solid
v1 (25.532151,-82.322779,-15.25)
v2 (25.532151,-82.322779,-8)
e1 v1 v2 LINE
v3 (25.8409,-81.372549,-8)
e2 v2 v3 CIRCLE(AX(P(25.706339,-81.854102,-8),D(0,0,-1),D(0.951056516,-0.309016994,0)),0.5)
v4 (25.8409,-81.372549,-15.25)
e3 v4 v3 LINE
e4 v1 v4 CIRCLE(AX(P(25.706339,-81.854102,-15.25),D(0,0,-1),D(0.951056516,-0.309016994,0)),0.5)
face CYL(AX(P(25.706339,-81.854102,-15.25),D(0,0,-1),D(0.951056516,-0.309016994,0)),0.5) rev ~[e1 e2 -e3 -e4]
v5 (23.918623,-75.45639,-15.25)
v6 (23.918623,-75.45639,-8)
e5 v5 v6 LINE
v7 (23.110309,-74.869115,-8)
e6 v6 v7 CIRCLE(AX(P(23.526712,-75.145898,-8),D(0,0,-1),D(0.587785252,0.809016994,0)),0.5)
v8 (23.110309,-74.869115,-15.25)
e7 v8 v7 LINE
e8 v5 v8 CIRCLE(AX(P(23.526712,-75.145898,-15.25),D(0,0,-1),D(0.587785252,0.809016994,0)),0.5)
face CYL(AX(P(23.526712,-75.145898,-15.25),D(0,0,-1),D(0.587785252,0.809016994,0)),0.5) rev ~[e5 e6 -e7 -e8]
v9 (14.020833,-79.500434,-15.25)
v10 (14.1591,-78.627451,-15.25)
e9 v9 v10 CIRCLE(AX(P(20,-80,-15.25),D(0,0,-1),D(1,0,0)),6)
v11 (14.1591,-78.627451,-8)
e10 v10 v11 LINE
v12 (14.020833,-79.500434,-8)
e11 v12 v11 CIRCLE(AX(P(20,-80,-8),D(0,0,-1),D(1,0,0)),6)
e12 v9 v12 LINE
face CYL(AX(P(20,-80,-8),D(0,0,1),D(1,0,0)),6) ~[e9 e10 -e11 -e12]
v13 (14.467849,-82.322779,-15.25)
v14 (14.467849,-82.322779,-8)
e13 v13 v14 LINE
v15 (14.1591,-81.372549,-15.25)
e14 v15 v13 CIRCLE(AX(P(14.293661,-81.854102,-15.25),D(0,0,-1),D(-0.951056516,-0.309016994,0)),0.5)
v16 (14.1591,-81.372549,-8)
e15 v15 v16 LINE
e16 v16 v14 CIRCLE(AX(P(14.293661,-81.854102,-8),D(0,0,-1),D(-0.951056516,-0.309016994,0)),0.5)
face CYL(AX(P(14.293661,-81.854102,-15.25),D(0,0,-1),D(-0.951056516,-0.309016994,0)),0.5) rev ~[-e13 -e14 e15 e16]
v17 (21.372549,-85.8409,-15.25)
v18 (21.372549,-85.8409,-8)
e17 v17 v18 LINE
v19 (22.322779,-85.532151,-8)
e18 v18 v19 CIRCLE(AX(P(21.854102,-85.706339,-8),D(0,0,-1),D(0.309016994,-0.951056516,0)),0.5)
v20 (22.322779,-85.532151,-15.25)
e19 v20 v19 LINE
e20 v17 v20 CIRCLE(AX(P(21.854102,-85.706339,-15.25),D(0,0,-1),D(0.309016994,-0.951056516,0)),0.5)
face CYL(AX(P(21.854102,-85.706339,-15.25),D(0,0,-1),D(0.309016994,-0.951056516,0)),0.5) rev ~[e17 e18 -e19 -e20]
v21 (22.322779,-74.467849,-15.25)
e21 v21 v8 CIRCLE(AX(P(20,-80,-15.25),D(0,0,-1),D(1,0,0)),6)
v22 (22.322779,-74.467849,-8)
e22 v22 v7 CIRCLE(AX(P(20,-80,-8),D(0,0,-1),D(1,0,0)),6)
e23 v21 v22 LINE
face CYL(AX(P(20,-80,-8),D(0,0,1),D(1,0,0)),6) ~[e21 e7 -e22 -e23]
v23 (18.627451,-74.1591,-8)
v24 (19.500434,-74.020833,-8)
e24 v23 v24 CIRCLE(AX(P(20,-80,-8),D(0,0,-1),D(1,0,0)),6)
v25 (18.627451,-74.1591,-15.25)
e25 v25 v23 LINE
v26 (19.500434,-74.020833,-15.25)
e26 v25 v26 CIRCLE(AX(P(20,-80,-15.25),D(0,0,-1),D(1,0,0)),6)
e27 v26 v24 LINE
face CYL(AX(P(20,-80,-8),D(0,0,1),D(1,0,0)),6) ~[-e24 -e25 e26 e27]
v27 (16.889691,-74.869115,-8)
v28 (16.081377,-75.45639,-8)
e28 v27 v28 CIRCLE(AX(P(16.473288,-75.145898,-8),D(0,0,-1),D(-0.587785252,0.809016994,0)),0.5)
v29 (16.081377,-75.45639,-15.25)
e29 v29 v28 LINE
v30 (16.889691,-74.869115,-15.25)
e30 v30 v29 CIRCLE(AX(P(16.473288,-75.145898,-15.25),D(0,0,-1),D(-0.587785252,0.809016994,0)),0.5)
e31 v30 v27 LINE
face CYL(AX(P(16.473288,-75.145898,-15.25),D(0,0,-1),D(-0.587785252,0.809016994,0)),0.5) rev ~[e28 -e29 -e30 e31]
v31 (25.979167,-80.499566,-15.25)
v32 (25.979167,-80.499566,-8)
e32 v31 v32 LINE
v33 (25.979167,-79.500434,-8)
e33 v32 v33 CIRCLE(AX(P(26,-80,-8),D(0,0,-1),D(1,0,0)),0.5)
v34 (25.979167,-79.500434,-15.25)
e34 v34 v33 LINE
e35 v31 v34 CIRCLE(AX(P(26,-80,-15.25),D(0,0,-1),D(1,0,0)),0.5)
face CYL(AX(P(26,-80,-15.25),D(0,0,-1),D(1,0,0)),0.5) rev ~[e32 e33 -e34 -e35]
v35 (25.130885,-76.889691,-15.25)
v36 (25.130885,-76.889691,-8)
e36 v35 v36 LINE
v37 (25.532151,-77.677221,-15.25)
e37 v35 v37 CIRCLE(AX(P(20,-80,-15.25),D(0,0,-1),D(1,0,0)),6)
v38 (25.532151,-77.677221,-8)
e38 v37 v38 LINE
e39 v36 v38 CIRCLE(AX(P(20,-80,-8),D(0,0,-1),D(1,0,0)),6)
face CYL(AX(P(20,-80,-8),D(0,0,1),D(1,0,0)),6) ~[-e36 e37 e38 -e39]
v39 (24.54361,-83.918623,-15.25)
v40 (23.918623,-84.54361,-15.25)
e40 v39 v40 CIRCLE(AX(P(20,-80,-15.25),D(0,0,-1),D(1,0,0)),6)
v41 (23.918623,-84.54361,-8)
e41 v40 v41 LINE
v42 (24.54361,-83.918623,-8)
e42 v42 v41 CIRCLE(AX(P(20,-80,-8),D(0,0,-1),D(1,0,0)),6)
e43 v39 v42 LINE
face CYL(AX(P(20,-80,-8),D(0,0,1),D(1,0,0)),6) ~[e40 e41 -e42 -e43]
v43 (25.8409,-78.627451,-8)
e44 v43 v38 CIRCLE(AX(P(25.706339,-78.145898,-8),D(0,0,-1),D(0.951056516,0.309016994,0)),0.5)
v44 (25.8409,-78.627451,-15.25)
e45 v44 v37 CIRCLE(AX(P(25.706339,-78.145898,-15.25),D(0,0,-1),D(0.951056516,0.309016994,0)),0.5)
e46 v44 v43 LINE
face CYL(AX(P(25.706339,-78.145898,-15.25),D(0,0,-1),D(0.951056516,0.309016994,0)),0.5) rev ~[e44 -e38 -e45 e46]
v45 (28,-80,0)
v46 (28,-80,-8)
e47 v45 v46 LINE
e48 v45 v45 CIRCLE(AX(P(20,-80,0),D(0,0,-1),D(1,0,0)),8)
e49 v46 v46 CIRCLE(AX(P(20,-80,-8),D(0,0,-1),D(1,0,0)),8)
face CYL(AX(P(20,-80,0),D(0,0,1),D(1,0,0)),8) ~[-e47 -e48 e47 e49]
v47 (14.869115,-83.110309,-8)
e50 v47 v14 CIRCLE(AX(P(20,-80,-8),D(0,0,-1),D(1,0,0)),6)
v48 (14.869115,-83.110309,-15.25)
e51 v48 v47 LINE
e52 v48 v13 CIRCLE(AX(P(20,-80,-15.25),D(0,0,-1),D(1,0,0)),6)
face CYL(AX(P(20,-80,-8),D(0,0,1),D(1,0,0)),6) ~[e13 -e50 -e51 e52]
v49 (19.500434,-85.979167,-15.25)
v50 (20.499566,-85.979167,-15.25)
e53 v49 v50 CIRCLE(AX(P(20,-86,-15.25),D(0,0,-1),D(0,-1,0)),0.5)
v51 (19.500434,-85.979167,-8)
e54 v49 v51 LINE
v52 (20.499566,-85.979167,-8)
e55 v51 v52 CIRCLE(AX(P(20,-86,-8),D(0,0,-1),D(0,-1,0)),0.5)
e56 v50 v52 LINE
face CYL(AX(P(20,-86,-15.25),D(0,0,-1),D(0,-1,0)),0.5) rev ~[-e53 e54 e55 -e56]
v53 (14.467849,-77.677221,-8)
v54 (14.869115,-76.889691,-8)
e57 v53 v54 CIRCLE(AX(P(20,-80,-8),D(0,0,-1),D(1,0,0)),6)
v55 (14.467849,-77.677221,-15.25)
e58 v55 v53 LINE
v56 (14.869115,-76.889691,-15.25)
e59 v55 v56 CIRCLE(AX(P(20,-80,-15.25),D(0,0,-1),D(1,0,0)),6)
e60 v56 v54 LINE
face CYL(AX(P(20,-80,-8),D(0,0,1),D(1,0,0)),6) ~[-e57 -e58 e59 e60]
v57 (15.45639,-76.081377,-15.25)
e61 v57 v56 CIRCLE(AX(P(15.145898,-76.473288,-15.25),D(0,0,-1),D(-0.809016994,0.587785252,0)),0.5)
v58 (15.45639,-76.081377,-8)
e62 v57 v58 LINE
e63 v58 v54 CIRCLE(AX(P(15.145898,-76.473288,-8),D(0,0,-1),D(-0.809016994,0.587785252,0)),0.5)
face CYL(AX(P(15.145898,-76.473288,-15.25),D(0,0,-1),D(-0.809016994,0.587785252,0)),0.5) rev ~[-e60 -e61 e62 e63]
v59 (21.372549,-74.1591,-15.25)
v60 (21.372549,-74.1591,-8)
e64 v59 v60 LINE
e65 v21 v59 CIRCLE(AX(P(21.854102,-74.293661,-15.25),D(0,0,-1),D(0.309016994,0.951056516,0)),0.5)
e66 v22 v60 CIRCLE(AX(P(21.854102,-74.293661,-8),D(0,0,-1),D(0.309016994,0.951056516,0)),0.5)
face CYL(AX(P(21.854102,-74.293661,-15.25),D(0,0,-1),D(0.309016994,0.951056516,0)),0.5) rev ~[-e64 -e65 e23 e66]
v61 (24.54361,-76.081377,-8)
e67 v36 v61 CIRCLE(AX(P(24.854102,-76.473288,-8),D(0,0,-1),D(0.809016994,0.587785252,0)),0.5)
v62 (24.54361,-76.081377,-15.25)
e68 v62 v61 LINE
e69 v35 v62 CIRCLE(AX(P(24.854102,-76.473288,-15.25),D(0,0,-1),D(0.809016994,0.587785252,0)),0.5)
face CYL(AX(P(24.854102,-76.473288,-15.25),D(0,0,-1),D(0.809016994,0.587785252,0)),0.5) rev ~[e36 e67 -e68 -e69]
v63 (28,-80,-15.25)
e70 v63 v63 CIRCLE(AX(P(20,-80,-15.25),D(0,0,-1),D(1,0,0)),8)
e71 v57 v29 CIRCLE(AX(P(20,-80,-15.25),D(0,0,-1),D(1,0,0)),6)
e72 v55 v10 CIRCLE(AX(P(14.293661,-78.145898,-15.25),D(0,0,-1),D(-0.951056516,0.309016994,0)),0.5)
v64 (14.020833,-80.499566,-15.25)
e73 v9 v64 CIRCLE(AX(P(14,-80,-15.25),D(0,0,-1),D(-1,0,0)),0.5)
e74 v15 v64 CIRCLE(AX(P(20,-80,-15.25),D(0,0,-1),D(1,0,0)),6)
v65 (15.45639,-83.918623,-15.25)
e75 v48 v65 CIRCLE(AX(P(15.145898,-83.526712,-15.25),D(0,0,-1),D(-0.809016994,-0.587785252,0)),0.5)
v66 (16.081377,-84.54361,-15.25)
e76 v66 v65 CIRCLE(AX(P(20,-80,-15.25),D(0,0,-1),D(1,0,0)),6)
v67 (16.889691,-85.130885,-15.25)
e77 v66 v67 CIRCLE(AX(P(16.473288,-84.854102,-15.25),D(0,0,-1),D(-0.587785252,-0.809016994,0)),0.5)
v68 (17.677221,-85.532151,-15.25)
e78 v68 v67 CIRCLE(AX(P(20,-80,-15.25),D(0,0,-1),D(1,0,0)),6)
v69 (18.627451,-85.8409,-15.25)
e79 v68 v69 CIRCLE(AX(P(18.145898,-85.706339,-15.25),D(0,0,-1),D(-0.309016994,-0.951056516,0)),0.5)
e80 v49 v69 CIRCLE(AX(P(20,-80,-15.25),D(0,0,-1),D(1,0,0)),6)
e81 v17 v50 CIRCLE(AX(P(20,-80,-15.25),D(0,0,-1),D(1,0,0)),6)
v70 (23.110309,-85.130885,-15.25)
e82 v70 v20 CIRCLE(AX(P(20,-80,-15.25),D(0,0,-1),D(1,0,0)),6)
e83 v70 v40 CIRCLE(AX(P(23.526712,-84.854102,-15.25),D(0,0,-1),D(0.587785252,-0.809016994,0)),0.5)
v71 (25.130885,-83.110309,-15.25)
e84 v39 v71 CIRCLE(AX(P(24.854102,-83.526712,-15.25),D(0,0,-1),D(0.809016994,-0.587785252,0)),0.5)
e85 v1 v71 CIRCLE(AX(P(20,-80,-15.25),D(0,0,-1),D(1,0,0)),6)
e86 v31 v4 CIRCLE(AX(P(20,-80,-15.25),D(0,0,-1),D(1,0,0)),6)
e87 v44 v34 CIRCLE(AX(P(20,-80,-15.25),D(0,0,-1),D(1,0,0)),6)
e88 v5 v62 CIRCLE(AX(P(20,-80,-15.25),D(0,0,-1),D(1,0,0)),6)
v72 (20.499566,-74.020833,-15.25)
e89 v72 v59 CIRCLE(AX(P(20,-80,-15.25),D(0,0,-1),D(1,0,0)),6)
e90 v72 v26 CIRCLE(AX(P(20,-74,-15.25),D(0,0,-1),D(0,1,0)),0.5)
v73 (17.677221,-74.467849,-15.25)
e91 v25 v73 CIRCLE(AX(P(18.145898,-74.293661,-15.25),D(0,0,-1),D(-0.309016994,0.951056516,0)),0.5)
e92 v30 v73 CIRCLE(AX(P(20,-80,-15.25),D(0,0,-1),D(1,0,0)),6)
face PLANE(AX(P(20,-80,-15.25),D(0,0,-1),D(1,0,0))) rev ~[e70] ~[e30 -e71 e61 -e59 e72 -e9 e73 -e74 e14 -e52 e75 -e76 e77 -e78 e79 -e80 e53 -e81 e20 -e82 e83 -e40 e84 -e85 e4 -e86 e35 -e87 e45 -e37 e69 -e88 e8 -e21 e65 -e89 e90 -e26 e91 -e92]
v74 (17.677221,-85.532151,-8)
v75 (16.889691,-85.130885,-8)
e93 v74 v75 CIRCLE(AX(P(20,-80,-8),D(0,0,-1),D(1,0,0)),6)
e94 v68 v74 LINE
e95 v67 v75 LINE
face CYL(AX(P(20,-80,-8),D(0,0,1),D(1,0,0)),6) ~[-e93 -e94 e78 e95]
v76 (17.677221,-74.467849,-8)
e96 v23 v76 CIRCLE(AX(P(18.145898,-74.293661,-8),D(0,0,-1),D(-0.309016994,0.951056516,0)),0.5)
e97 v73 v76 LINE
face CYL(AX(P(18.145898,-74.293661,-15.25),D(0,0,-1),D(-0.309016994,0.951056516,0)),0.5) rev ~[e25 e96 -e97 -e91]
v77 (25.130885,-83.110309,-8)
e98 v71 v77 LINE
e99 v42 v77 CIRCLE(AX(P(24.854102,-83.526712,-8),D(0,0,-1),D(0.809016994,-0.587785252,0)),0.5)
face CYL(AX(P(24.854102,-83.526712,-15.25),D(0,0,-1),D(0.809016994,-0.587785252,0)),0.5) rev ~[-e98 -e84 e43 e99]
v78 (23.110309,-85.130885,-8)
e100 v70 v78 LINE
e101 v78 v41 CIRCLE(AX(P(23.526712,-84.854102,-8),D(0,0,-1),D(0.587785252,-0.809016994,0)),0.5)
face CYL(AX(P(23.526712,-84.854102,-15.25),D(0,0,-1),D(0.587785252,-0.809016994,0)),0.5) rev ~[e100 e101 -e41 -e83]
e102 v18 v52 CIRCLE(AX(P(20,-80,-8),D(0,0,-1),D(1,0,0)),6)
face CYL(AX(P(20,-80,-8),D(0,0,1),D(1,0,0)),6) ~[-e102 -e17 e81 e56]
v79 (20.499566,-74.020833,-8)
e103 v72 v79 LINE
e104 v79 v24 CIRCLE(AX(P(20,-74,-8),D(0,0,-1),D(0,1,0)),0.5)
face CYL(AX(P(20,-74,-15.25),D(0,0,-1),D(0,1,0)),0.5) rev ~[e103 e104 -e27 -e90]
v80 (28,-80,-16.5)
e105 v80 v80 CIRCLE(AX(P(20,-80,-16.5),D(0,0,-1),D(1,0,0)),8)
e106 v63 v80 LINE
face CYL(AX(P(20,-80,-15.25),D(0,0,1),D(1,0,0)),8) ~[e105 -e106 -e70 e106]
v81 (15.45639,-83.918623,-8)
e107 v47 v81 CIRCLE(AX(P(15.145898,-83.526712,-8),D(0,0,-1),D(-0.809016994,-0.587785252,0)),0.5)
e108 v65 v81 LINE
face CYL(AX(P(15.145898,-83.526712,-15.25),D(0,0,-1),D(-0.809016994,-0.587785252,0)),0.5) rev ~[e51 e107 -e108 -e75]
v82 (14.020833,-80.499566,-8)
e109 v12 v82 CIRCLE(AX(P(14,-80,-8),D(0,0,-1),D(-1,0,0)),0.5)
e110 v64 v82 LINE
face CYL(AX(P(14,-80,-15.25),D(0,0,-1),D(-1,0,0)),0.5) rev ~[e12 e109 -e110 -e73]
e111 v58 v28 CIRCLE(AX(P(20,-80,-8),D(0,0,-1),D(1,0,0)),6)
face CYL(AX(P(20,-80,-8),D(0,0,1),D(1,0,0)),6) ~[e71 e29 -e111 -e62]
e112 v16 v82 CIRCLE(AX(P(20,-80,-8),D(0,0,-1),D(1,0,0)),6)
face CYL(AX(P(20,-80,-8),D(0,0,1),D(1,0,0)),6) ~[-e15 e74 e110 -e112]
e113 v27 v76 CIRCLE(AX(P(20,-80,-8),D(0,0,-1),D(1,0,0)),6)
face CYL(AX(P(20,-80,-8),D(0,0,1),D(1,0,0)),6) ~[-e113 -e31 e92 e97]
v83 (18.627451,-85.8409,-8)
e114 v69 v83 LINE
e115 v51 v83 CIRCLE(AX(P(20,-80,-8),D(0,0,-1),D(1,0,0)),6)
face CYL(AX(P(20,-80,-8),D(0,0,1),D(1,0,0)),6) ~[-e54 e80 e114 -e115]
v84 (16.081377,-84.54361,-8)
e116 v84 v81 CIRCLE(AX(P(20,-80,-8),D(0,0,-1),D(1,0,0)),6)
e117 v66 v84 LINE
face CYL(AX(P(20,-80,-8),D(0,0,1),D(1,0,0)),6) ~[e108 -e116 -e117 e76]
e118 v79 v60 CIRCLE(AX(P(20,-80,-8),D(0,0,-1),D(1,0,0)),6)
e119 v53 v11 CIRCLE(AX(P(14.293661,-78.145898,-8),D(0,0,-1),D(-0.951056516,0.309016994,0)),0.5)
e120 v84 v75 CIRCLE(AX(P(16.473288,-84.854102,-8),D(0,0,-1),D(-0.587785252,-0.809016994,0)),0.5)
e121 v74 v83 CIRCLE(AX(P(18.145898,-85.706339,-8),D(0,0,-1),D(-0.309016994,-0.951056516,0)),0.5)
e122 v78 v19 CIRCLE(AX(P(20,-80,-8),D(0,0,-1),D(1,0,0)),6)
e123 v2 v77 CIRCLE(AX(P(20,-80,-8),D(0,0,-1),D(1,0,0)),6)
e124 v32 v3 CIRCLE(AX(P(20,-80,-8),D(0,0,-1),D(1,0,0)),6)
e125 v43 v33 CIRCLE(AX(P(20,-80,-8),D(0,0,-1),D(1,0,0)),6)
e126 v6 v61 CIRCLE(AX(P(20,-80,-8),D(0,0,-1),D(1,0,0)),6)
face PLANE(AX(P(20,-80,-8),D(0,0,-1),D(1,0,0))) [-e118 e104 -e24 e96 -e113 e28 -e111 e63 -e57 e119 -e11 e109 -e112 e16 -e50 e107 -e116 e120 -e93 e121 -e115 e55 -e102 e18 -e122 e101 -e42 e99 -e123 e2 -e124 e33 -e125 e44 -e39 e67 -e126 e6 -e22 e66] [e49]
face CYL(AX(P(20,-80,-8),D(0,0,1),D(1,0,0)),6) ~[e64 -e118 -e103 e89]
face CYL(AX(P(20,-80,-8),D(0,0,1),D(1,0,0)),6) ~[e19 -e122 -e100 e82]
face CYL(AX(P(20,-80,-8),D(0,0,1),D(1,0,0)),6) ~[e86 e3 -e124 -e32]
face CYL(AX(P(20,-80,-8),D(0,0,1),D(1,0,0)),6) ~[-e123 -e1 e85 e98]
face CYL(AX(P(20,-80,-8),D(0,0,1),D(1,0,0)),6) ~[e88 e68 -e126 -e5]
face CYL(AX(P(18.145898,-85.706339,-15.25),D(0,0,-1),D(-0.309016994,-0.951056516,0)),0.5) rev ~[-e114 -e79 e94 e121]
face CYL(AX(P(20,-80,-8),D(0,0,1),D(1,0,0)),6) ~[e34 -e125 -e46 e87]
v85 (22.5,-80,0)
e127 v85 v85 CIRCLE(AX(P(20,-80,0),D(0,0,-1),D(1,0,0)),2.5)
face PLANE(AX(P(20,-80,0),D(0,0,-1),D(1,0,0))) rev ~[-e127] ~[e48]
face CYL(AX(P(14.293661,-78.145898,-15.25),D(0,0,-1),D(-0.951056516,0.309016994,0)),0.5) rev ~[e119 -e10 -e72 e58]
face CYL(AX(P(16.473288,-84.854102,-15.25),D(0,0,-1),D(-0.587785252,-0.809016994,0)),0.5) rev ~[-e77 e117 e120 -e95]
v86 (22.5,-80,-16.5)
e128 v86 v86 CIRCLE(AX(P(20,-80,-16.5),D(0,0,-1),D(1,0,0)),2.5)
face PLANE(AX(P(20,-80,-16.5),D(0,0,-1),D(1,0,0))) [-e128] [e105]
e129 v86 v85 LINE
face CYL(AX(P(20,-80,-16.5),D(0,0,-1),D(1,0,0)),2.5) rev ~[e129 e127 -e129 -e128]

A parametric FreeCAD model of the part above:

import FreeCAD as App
import Part
import Sketcher

doc = App.newDocument("Part")
body = doc.addObject("PartDesign::Body", "Body")

sketch1 = body.newObject("Sketcher::SketchObject", "Sketch")
sketch1.AttachmentSupport = (doc.getObject("XY_Plane"), [""])
sketch1.MapMode = "FlatFace"
sketch1.addGeometry(Part.Circle(App.Vector(20, -80, 0), App.Vector(0, 0, 1), 8), False)
sketch1.addConstraint(Sketcher.Constraint("Diameter", 0, 16.0))
sketch1.addConstraint(Sketcher.Constraint("DistanceX", -1, 1, 0, 3, 20.0))
sketch1.addConstraint(Sketcher.Constraint("DistanceY", 0, 3, -1, 1, 80.0))
pad1 = body.newObject("PartDesign::Pad", "Pad")
pad1.Profile = sketch1
pad1.Length = 8
pad1.Reversed = True

sketch2 = body.newObject("Sketcher::SketchObject", "Sketch001")
sketch2.AttachmentSupport = (doc.getObject("XY_Plane"), [""])
sketch2.MapMode = "FlatFace"
sketch2.AttachmentOffset = App.Placement(App.Vector(0, 0, -8), App.Rotation())
sketch2.addGeometry(Part.Circle(App.Vector(20, -80, 0), App.Vector(0, 0, 1), 6), False)
sketch2.addConstraint(Sketcher.Constraint("Diameter", 0, 12.0))
sketch2.addConstraint(Sketcher.Constraint("DistanceX", -1, 1, 0, 3, 20.0))
sketch2.addConstraint(Sketcher.Constraint("DistanceY", 0, 3, -1, 1, 80.0))
pad2 = body.newObject("PartDesign::Pad", "Pad001")
pad2.Profile = sketch2
pad2.Length = 7.25
pad2.Reversed = True

sketch3 = body.newObject("Sketcher::SketchObject", "Sketch002")
sketch3.AttachmentSupport = (doc.getObject("XY_Plane"), [""])
sketch3.MapMode = "FlatFace"
sketch3.AttachmentOffset = App.Placement(App.Vector(0, 0, -15.25), App.Rotation())
sketch3.addGeometry(Part.Circle(App.Vector(26, -80, 0), App.Vector(0, 0, 1), 0.5), False)
sketch3.addConstraint(Sketcher.Constraint("Diameter", 0, 1.0))
sketch3.addConstraint(Sketcher.Constraint("DistanceX", -1, 1, 0, 3, 26.0))
sketch3.addConstraint(Sketcher.Constraint("DistanceY", 0, 3, -1, 1, 80.0))
pocket1 = body.newObject("PartDesign::Pocket", "Pocket")
pocket1.Profile = sketch3
pocket1.Length = 7.25
pocket1.Reversed = True
doc.recompute()

datumline = body.newObject("PartDesign::Line", "DatumLine")
datumline.Placement = App.Placement(App.Vector(20, -80, 0), App.Rotation(App.Vector(0, 0, 1), App.Vector(0, 0, -1)))
polarpattern = body.newObject("PartDesign::PolarPattern", "PolarPattern")
polarpattern.Originals = [pocket1]
polarpattern.Axis = (datumline, [""])
polarpattern.Angle = 360
polarpattern.Occurrences = 20
body.Tip = polarpattern

sketch4 = body.newObject("Sketcher::SketchObject", "Sketch003")
sketch4.AttachmentSupport = (doc.getObject("XY_Plane"), [""])
sketch4.MapMode = "FlatFace"
sketch4.AttachmentOffset = App.Placement(App.Vector(0, 0, -15.25), App.Rotation())
sketch4.addGeometry(Part.Circle(App.Vector(20, -80, 0), App.Vector(0, 0, 1), 8), False)
sketch4.addConstraint(Sketcher.Constraint("Diameter", 0, 16.0))
sketch4.addConstraint(Sketcher.Constraint("DistanceX", -1, 1, 0, 3, 20.0))
sketch4.addConstraint(Sketcher.Constraint("DistanceY", 0, 3, -1, 1, 80.0))
pad3 = body.newObject("PartDesign::Pad", "Pad002")
pad3.Profile = sketch4
pad3.Length = 1.25
pad3.Reversed = True

sketch5 = body.newObject("Sketcher::SketchObject", "Sketch004")
sketch5.AttachmentSupport = (doc.getObject("XY_Plane"), [""])
sketch5.MapMode = "FlatFace"
sketch5.AttachmentOffset = App.Placement(App.Vector(0, 0, -16.5), App.Rotation())
sketch5.addGeometry(Part.Circle(App.Vector(20, -80, 0), App.Vector(0, 0, 1), 2.5), False)
sketch5.addConstraint(Sketcher.Constraint("Diameter", 0, 5.0))
sketch5.addConstraint(Sketcher.Constraint("DistanceX", -1, 1, 0, 3, 20.0))
sketch5.addConstraint(Sketcher.Constraint("DistanceY", 0, 3, -1, 1, 80.0))
pocket2 = body.newObject("PartDesign::Pocket", "Pocket001")
pocket2.Profile = sketch5
pocket2.Length = 16.5
pocket2.Reversed = True

doc.recompute()
